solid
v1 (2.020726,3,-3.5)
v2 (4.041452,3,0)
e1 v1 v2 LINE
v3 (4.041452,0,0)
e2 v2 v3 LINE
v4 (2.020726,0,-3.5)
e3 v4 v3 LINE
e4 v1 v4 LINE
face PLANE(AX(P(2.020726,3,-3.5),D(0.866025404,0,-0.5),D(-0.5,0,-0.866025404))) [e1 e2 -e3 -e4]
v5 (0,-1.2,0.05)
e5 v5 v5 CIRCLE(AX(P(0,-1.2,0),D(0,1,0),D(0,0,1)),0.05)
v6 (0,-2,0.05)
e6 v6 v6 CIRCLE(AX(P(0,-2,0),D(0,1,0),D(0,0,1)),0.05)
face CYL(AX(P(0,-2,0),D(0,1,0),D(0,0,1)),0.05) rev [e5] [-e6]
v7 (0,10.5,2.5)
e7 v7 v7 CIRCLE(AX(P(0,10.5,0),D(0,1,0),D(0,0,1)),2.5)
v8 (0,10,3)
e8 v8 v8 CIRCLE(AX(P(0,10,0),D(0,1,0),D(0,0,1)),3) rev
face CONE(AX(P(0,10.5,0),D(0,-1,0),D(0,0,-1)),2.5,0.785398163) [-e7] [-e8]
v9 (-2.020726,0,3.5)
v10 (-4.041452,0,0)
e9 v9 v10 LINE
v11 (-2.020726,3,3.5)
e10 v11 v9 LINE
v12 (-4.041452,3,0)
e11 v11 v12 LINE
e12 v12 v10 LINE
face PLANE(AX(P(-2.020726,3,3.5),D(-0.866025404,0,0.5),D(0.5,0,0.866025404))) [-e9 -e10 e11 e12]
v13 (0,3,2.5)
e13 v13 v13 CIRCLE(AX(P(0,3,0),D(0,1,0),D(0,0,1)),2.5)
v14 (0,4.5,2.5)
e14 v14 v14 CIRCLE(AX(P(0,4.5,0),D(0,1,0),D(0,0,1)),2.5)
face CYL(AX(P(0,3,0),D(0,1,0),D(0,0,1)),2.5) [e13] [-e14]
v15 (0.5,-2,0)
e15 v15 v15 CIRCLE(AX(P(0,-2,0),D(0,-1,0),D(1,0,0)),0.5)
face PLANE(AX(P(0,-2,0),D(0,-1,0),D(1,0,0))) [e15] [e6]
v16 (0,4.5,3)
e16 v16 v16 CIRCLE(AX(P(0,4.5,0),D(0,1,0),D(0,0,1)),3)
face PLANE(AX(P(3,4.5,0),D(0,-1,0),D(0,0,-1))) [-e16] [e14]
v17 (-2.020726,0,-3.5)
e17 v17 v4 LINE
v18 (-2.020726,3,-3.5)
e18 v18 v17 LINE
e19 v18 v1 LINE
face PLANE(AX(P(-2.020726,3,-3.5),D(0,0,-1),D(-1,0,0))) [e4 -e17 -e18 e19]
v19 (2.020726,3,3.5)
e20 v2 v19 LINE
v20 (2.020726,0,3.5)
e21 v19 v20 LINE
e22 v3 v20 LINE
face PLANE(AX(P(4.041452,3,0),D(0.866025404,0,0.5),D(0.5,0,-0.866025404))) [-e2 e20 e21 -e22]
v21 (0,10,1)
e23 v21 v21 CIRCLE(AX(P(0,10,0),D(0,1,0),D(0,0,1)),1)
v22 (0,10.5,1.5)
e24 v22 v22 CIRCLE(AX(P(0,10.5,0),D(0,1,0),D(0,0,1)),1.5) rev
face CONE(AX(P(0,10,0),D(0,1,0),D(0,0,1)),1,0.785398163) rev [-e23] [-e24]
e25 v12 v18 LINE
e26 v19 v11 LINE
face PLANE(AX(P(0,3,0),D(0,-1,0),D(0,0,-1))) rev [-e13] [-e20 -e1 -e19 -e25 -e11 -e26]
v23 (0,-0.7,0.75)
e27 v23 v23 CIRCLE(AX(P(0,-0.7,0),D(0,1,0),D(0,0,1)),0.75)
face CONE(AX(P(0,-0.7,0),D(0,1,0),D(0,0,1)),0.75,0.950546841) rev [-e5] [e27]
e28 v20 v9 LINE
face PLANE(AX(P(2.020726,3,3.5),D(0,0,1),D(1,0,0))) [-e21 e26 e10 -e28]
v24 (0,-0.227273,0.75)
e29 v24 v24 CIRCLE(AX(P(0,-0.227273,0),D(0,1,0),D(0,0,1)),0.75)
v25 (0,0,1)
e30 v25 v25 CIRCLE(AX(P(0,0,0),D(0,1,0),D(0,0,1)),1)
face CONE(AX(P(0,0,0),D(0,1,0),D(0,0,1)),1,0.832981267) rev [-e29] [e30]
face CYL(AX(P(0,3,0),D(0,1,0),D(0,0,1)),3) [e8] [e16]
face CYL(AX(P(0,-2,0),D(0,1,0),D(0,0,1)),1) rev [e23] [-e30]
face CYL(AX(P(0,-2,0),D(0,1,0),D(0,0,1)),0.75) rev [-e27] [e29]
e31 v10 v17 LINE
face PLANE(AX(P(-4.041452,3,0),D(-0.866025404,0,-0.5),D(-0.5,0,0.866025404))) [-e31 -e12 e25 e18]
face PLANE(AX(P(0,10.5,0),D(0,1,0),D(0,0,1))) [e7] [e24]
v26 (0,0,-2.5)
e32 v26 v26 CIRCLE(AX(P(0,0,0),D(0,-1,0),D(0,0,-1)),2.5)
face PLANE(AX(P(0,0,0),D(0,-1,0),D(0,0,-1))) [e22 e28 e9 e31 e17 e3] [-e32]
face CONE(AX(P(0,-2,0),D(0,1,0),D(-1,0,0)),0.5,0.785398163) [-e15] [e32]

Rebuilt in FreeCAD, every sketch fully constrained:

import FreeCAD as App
import Part
import Sketcher
from FreeCAD import Vector
Q = App.Units.Quantity


def edges_at(feature, points):
    """Names of the edges that pass closest to the given points."""
    edges = feature.Shape.Edges
    near = lambda p: min(range(len(edges)), key=lambda i: edges[i].distToShape(Part.Vertex(*p))[0])
    return sorted({f"Edge{near(p) + 1}" for p in points})


def add_polygon(sketch, points):
    """Adds a closed chain of lines whose ends are joined by coincident constraints."""
    first, n = sketch.GeometryCount, len(points)
    for a, b in zip(points, points[1:] + points[:1]):
        sketch.addGeometry(Part.LineSegment(App.Vector(*a, 0), App.Vector(*b, 0)), False)
    for i in range(n):
        sketch.addConstraint(Sketcher.Constraint("Coincident", first + i, 2, first + (i + 1) % n, 1))

doc = App.newDocument("Part")
body = doc.addObject("PartDesign::Body", "Body")

# Sketch on XZ plane
sketch1 = doc.addObject("Sketcher::SketchObject", "Sketch")
body.addObject(sketch1)
sketch1.AttachmentSupport = (doc.XZ_Plane, [""])
sketch1.MapMode = "FlatFace"
add_polygon(sketch1, [(-2, 3.5), (-4, 0), (-2, -3.5), (2, -3.5), (4, 0), (2, 3.5)])  # lines 0-5
sketch1.addConstraint(Sketcher.Constraint("Horizontal", 2))
sketch1.addConstraint(Sketcher.Constraint("Horizontal", 5))
sketch1.addConstraint(Sketcher.Constraint("Symmetric", 0, 2, 3, 2, -1, 1))
sketch1.addConstraint(Sketcher.Constraint("Symmetric", 1, 2, 4, 2, -1, 1))
sketch1.addConstraint(Sketcher.Constraint("PointOnObject", 0, 2, -1))
sketch1.addConstraint(Sketcher.Constraint("Parallel", 0, 3))
sketch1.addConstraint(Sketcher.Constraint("Vertical", 2, 2, 4, 2))
sketch1.addConstraint(Sketcher.Constraint("Angle", 0, Q("-120 deg")))
sketch1.addConstraint(Sketcher.Constraint("DistanceY", 2, 2, 4, 2, 7.0))
sketch1.addConstraint(Sketcher.Constraint("DistanceX", 2, 1, 2, 2, 4.041452))
pad1 = doc.addObject("PartDesign::Pad", "Pad")
body.addObject(pad1)
pad1.Profile = sketch1
pad1.Length = 3
pad1.Reversed = True

# Sketch on XY plane
sketch2 = doc.addObject("Sketcher::SketchObject", "Sketch001")
body.addObject(sketch2)
sketch2.AttachmentSupport = (doc.XY_Plane, [""])
sketch2.MapMode = "FlatFace"
add_polygon(sketch2, [(2.5, 3), (0, 3), (0, 10.5), (3, 10.5), (3, 4.5), (2.5, 4.5)])  # lines 0-5
sketch2.addConstraint(Sketcher.Constraint("Horizontal", 0))
sketch2.addConstraint(Sketcher.Constraint("Vertical", 1))
sketch2.addConstraint(Sketcher.Constraint("Horizontal", 2))
sketch2.addConstraint(Sketcher.Constraint("Vertical", 3))
sketch2.addConstraint(Sketcher.Constraint("Horizontal", 4))
sketch2.addConstraint(Sketcher.Constraint("Vertical", 5))
sketch2.addConstraint(Sketcher.Constraint("PointOnObject", 0, 2, -2))
sketch2.addConstraint(Sketcher.Constraint("DistanceX", 2, 1, 2, 2, 3.0))
sketch2.addConstraint(Sketcher.Constraint("DistanceY", 3, 2, 3, 1, 6.0))
sketch2.addConstraint(Sketcher.Constraint("DistanceX", 0, 2, 0, 1, 2.5))
sketch2.addConstraint(Sketcher.Constraint("DistanceY", 1, 1, 1, 2, 7.5))
sketch2.addConstraint(Sketcher.Constraint("DistanceY", -1, 1, 0, 2, 3.0))
revolution = doc.addObject("PartDesign::Revolution", "Revolution")
body.addObject(revolution)
revolution.Profile = sketch2
revolution.ReferenceAxis = (sketch2, ["V_Axis"])
revolution.Angle = 360

# Sketch on XY plane
sketch3 = doc.addObject("Sketcher::SketchObject", "Sketch002")
body.addObject(sketch3)
sketch3.AttachmentSupport = (doc.XY_Plane, [""])
sketch3.MapMode = "FlatFace"
add_polygon(sketch3, [(2.5, 0), (0, 0), (0, -2), (0.5, -2)])  # lines 0-3
sketch3.addConstraint(Sketcher.Constraint("Horizontal", 0))
sketch3.addConstraint(Sketcher.Constraint("Vertical", 1))
sketch3.addConstraint(Sketcher.Constraint("Horizontal", 2))
sketch3.addConstraint(Sketcher.Constraint("Coincident", 0, 2, -1, 1))
sketch3.addConstraint(Sketcher.Constraint("DistanceY", 1, 2, 1, 1, 2.0))
sketch3.addConstraint(Sketcher.Constraint("Angle", 3, Q("45 deg")))
sketch3.addConstraint(Sketcher.Constraint("DistanceX", 0, 2, 0, 1, 2.5))
revolution2 = doc.addObject("PartDesign::Revolution", "Revolution001")
body.addObject(revolution2)
revolution2.Profile = sketch3
revolution2.ReferenceAxis = (sketch3, ["V_Axis"])
revolution2.Angle = 360

# Sketch on XY plane
sketch4 = doc.addObject("Sketcher::SketchObject", "Sketch003")
body.addObject(sketch4)
sketch4.AttachmentSupport = (doc.XY_Plane, [""])
sketch4.MapMode = "FlatFace"
add_polygon(sketch4, [(0.05, -2), (0, -2), (0, 10.5), (1, 10.5), (1, 0), (0.75, -0.23), (0.75, -0.7), (0.05, -1.2)])  # lines 0-7
sketch4.addConstraint(Sketcher.Constraint("Horizontal", 0))
sketch4.addConstraint(Sketcher.Constraint("Vertical", 1))
sketch4.addConstraint(Sketcher.Constraint("Horizontal", 2))
sketch4.addConstraint(Sketcher.Constraint("Vertical", 3))
sketch4.addConstraint(Sketcher.Constraint("Vertical", 5))
sketch4.addConstraint(Sketcher.Constraint("Vertical", 7))
sketch4.addConstraint(Sketcher.Constraint("PointOnObject", 0, 2, -2))
sketch4.addConstraint(Sketcher.Constraint("PointOnObject", 3, 2, -1))
sketch4.addConstraint(Sketcher.Constraint("DistanceX", 2, 1, 2, 2, 1.0))
sketch4.addConstraint(Sketcher.Constraint("DistanceY", 1, 1, 1, 2, 12.5))
sketch4.addConstraint(Sketcher.Constraint("DistanceY", 3, 2, 3, 1, 10.5))
sketch4.addConstraint(Sketcher.Constraint("DistanceY", 7, 2, 7, 1, 0.8))
sketch4.addConstraint(Sketcher.Constraint("DistanceX", 0, 2, 0, 1, 0.05))
sketch4.addConstraint(Sketcher.Constraint("DistanceY", 5, 2, -1, 1, 0.7))
sketch4.addConstraint(Sketcher.Constraint("DistanceX", 6, 2, 5, 2, 0.7))
sketch4.addConstraint(Sketcher.Constraint("DistanceY", 5, 2, 5, 1, 0.472727))
groove = doc.addObject("PartDesign::Groove", "Groove")
body.addObject(groove)
groove.Profile = sketch4
groove.ReferenceAxis = (sketch4, ["V_Axis"])
groove.Angle = 360
doc.recompute()

chamfer = doc.addObject("PartDesign::Chamfer", "Chamfer")
body.addObject(chamfer)
chamfer.Base = (groove, edges_at(groove, [(-3, 10.5, 0), (-1, 10.5, 0)]))
chamfer.Size = 0.5

doc.recompute()
